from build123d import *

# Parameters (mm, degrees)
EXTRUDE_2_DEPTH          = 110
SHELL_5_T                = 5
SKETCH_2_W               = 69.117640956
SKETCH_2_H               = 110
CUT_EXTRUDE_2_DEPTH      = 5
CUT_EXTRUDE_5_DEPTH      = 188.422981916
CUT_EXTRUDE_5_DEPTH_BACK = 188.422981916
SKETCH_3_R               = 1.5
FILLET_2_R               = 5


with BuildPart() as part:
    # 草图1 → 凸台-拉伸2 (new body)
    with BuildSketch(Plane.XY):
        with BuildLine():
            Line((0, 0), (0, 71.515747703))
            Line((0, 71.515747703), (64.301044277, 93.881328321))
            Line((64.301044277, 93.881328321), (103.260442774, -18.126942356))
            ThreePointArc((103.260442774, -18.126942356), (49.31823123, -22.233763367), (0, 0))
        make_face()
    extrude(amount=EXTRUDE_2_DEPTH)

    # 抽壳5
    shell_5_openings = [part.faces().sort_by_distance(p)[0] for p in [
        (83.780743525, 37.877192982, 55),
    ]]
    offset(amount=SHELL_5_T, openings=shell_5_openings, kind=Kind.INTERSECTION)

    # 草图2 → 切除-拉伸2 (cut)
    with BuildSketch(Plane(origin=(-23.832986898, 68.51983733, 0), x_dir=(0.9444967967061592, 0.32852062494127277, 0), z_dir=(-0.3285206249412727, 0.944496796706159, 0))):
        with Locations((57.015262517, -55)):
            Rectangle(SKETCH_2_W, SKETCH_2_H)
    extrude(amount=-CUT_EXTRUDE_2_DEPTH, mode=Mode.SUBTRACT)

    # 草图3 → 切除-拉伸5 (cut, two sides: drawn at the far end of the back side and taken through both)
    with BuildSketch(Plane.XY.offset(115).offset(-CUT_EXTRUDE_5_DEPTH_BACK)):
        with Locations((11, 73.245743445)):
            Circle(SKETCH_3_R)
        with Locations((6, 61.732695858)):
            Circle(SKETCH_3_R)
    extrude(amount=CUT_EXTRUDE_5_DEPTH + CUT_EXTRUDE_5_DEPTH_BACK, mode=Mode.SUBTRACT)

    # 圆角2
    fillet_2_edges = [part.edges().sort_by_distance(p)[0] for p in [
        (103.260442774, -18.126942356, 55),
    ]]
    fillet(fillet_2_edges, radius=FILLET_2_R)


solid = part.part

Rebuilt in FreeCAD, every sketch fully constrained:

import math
import FreeCAD as App
import Part
import Sketcher
Q = App.Units.Quantity


def edges_at(feature, points):
    """Names of the edges that pass closest to the given points."""
    edges = feature.Shape.Edges
    near = lambda p: min(range(len(edges)), key=lambda i: edges[i].distToShape(Part.Vertex(*p))[0])
    return sorted({f"Edge{near(p) + 1}" for p in points})


def faces_at(feature, points):
    """Names of the faces that lie closest to the given points."""
    faces = feature.Shape.Faces
    near = lambda p: min(range(len(faces)), key=lambda i: faces[i].distToShape(Part.Vertex(*p))[0])
    return sorted({f"Face{near(p) + 1}" for p in points})

doc = App.newDocument("Part")
params = doc.addObject("Spreadsheet::Sheet", "Params")
for row, (alias, value) in enumerate([
    ("pad1_length", "110 mm"),
    ("thickness_wall", "5 mm"),
    ("sketch2_height", "110 mm"),
    ("pocket1_length", "5 mm"),
    ("sketch3_diameter", "3 mm"),
    ("fillet_radius", "5 mm"),
], start=1):
    params.set(f"A{row}", alias)
    params.set(f"B{row}", "=" + value)
    params.setAlias(f"B{row}", alias)

body = doc.addObject("PartDesign::Body", "Body")

sketch1 = doc.addObject("Sketcher::SketchObject", "Sketch")
body.addObject(sketch1)
sketch1.AttachmentSupport = (doc.XY_Plane, [""])
sketch1.MapMode = "FlatFace"
sketch1.addGeometry(Part.LineSegment(App.Vector(0, 71.515748, 0), App.Vector(0, 0, 0)), False)
sketch1.addGeometry(Part.ArcOfCircle(Part.Circle(App.Vector(68.239551, 85.551862, 0), App.Vector(0, 0, 1), 109.433803), math.radians(-128.577248), math.radians(-71.335928)), False)
sketch1.addGeometry(Part.LineSegment(App.Vector(103.260443, -18.126942, 0), App.Vector(64.301044, 93.881328, 0)), False)
sketch1.addGeometry(Part.LineSegment(App.Vector(64.301044, 93.881328, 0), App.Vector(0, 71.515748, 0)), False)
sketch1.addConstraint(Sketcher.Constraint("Coincident", 0, 2, 1, 1))
sketch1.addConstraint(Sketcher.Constraint("Coincident", 1, 2, 2, 1))
sketch1.addConstraint(Sketcher.Constraint("Coincident", 2, 2, 3, 1))
sketch1.addConstraint(Sketcher.Constraint("Coincident", 3, 2, 0, 1))
sketch1.addConstraint(Sketcher.Constraint("Vertical", 0))
sketch1.addConstraint(Sketcher.Constraint("Coincident", 0, 2, -1, 1))
sketch1.addConstraint(Sketcher.Constraint("Radius", 1, Q("109.433803 mm")))
sketch1.addConstraint(Sketcher.Constraint("DistanceX", 2, 2, 1, 2, Q("38.959398 mm")))
sketch1.addConstraint(Sketcher.Constraint("Distance", 2, Q("118.590419 mm")))
sketch1.addConstraint(Sketcher.Constraint("DistanceY", 0, 2, 0, 1, Q("71.515748 mm")))
sketch1.addConstraint(Sketcher.Constraint("DistanceX", -1, 1, 1, 3, Q("68.239551 mm")))
sketch1.addConstraint(Sketcher.Constraint("DistanceY", -1, 1, 2, 2, Q("93.881328 mm")))
pad1 = doc.addObject("PartDesign::Pad", "Pad")
body.addObject(pad1)
pad1.Profile = sketch1
pad1.setExpression("Length", "Params.pad1_length")
doc.recompute()

thickness = doc.addObject("PartDesign::Thickness", "Thickness")
body.addObject(thickness)
thickness.Base = (pad1, faces_at(pad1, [(83.781, 37.877, 55)]))
thickness.setExpression("Value", "Params.thickness_wall")
thickness.Reversed = False
thickness.Join = "Intersection"

sketch2 = doc.addObject("Sketcher::SketchObject", "Sketch001")
body.addObject(sketch2)
sketch2.Placement = App.Placement(App.Vector(-23.832987, 68.519837, 0), App.Rotation(App.Vector(0.944496797, 0.328520625, 0), App.Vector(0, 0, -1.000000001), App.Vector(-0.328520625, 0.944496797, 0), "ZXY"))
sketch2.addGeometry(Part.LineSegment(App.Vector(22, 0, 0), App.Vector(22, -110, 0)), False)
sketch2.addGeometry(Part.LineSegment(App.Vector(22, -110, 0), App.Vector(92, -110, 0)), False)
sketch2.addGeometry(Part.LineSegment(App.Vector(92, -110, 0), App.Vector(92, 0, 0)), False)
sketch2.addGeometry(Part.LineSegment(App.Vector(92, 0, 0), App.Vector(22, 0, 0)), False)
sketch2.addConstraint(Sketcher.Constraint("Coincident", 0, 2, 1, 1))
sketch2.addConstraint(Sketcher.Constraint("Coincident", 1, 2, 2, 1))
sketch2.addConstraint(Sketcher.Constraint("Coincident", 2, 2, 3, 1))
sketch2.addConstraint(Sketcher.Constraint("Coincident", 3, 2, 0, 1))
sketch2.addConstraint(Sketcher.Constraint("Vertical", 0))
sketch2.addConstraint(Sketcher.Constraint("Horizontal", 1))
sketch2.addConstraint(Sketcher.Constraint("Vertical", 2))
sketch2.addConstraint(Sketcher.Constraint("Horizontal", 3))
sketch2.addConstraint(Sketcher.Constraint("PointOnObject", 2, 2, -1))
sketch2.addConstraint(Sketcher.Constraint("DistanceY", 0, 2, 0, 1, Q("110 mm")))
sketch2.addConstraint(Sketcher.Constraint("DistanceX", 1, 1, 1, 2, Q("69.117641 mm")))
sketch2.addConstraint(Sketcher.Constraint("DistanceX", -1, 1, 0, 2, Q("22.456442 mm")))
sketch2.setExpression("Constraints[9]", "Params.sketch2_height")
pocket1 = doc.addObject("PartDesign::Pocket", "Pocket")
body.addObject(pocket1)
pocket1.Profile = sketch2
pocket1.setExpression("Length", "Params.pocket1_length")

sketch3 = doc.addObject("Sketcher::SketchObject", "Sketch002")
body.addObject(sketch3)
sketch3.AttachmentSupport = (doc.XY_Plane, [""])
sketch3.MapMode = "FlatFace"
sketch3.AttachmentOffset = App.Placement(App.Vector(0, 0, 115), App.Rotation())
sketch3.addGeometry(Part.Circle(App.Vector(11, 73.2, 0), App.Vector(0, 0, 1), 1.5), False)
sketch3.addGeometry(Part.Circle(App.Vector(6, 61.7, 0), App.Vector(0, 0, 1), 1.5), False)
sketch3.addConstraint(Sketcher.Constraint("Equal", 0, 1))
sketch3.addConstraint(Sketcher.Constraint("Diameter", 0, Q("3 mm")))
sketch3.addConstraint(Sketcher.Constraint("DistanceX", -1, 1, 0, 3, Q("11 mm")))
sketch3.addConstraint(Sketcher.Constraint("DistanceX", -1, 1, 1, 3, Q("6 mm")))
sketch3.addConstraint(Sketcher.Constraint("DistanceY", -1, 1, 0, 3, Q("73.245743 mm")))
sketch3.addConstraint(Sketcher.Constraint("DistanceY", -1, 1, 1, 3, Q("61.732696 mm")))
sketch3.setExpression("Constraints[1]", "Params.sketch3_diameter")
pocket2 = doc.addObject("PartDesign::Pocket", "Pocket001")
body.addObject(pocket2)
pocket2.Profile = sketch3
pocket2.Type = "ThroughAll"
pocket2.Midplane = True
doc.recompute()

fillet = doc.addObject("PartDesign::Fillet", "Fillet")
body.addObject(fillet)
fillet.Base = (pocket2, edges_at(pocket2, [(103.26, -18.127, 55)]))
fillet.setExpression("Radius", "Params.fillet_radius")

doc.recompute()
